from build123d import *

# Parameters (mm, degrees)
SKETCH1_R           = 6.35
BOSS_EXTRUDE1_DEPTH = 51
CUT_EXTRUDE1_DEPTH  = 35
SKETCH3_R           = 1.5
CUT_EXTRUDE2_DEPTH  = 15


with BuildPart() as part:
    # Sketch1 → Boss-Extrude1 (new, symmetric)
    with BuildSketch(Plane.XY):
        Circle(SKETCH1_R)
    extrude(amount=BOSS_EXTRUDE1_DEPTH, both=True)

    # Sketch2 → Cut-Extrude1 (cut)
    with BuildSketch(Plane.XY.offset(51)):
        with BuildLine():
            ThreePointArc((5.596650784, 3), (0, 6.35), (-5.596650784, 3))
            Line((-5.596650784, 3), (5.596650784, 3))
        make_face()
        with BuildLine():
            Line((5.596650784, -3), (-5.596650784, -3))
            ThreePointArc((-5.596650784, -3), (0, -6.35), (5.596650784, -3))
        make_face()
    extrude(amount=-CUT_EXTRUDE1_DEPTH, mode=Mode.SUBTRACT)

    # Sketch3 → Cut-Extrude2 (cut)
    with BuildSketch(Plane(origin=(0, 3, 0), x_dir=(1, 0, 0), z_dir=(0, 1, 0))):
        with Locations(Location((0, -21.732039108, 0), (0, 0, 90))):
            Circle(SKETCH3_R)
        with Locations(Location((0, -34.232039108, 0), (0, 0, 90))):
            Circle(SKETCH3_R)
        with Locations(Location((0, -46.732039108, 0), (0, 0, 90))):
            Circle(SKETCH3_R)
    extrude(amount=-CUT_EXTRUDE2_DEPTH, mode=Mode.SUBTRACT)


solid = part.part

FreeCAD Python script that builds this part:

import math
import FreeCAD as App
import Part
import Sketcher

V = App.Vector

doc = App.newDocument("Part")
body = doc.addObject("PartDesign::Body", "Body")

sketch1 = doc.addObject("Sketcher::SketchObject", "Sketch")
body.addObject(sketch1)
sketch1.AttachmentSupport = (doc.XY_Plane, [""])
sketch1.MapMode = "FlatFace"
sketch1.addGeometry(Part.Circle(V(0, 0, 0), V(0, 0, 1), 6), False)
sketch1.addConstraint([
    Sketcher.Constraint("Coincident", 0, 3, -1, 1),
    Sketcher.Constraint("Diameter", 0, 12.7),
])
pad1 = doc.addObject("PartDesign::Pad", "Pad")
body.addObject(pad1)
pad1.Profile = sketch1
pad1.Length = 102
pad1.Midplane = True

sketch2 = doc.addObject("Sketcher::SketchObject", "Sketch001")
body.addObject(sketch2)
sketch2.AttachmentSupport = (doc.XY_Plane, [""])
sketch2.MapMode = "FlatFace"
sketch2.AttachmentOffset = App.Placement(V(0, 0, 51), App.Rotation())
sketch2.addGeometry([
    Part.ArcOfCircle(Part.Circle(V(0, 0, 0), V(0, 0, 1), 6), math.radians(28), math.radians(152)),
    Part.LineSegment(V(-6, 3, 0), V(6, 3, 0)),
    Part.LineSegment(V(6, -3, 0), V(-6, -3, 0)),
    Part.ArcOfCircle(Part.Circle(V(0, 0, 0), V(0, 0, 1), 6), math.radians(-152), math.radians(-28)),
], False)
sketch2.addConstraint([
    Sketcher.Constraint("Coincident", 0, 1, 1, 2),
    Sketcher.Constraint("Coincident", 1, 1, 0, 2),
    Sketcher.Constraint("Coincident", 2, 1, 3, 2),
    Sketcher.Constraint("Coincident", 3, 1, 2, 2),
    Sketcher.Constraint("Horizontal", 1),
    Sketcher.Constraint("Horizontal", 2),
    Sketcher.Constraint("Coincident", 0, 3, -1, 1),
    Sketcher.Constraint("Coincident", 3, 3, -1, 1),
    Sketcher.Constraint("Equal", 0, 3),
    Sketcher.Constraint("Vertical", 0, 1, 2, 1),
    Sketcher.Constraint("Radius", 0, 6.35),
    Sketcher.Constraint("DistanceY", -1, 1, 0, 1, 3.0),
])
pocket1 = doc.addObject("PartDesign::Pocket", "Pocket")
body.addObject(pocket1)
pocket1.Profile = sketch2
pocket1.Length = 35

sketch3 = doc.addObject("Sketcher::SketchObject", "Sketch002")
body.addObject(sketch3)
sketch3.AttachmentSupport = (doc.XZ_Plane, [""])
sketch3.MapMode = "FlatFace"
sketch3.AttachmentOffset = App.Placement(V(0, 0, -3), App.Rotation())
sketch3.addGeometry([
    Part.Circle(V(0, 21.7, 0), V(0, 0, 1), 1.5),
    Part.Circle(V(0, 34.2, 0), V(0, 0, 1), 1.5),
    Part.Circle(V(0, 46.7, 0), V(0, 0, 1), 1.5),
], False)
sketch3.addConstraint([
    Sketcher.Constraint("Equal", 0, 1),
    Sketcher.Constraint("Equal", 1, 2),
    Sketcher.Constraint("PointOnObject", 0, 3, -2),
    Sketcher.Constraint("PointOnObject", 1, 3, -2),
    Sketcher.Constraint("PointOnObject", 2, 3, -2),
    Sketcher.Constraint("Diameter", 0, 3.0),
    Sketcher.Constraint("DistanceY", 0, 3, 2, 3, 25.0),
    Sketcher.Constraint("DistanceY", 0, 3, 1, 3, 12.5),
    Sketcher.Constraint("DistanceY", -1, 1, 0, 3, 21.732039),
])
pocket2 = doc.addObject("PartDesign::Pocket", "Pocket001")
body.addObject(pocket2)
pocket2.Profile = sketch3
pocket2.Length = 15
pocket2.Reversed = True

doc.recompute()
